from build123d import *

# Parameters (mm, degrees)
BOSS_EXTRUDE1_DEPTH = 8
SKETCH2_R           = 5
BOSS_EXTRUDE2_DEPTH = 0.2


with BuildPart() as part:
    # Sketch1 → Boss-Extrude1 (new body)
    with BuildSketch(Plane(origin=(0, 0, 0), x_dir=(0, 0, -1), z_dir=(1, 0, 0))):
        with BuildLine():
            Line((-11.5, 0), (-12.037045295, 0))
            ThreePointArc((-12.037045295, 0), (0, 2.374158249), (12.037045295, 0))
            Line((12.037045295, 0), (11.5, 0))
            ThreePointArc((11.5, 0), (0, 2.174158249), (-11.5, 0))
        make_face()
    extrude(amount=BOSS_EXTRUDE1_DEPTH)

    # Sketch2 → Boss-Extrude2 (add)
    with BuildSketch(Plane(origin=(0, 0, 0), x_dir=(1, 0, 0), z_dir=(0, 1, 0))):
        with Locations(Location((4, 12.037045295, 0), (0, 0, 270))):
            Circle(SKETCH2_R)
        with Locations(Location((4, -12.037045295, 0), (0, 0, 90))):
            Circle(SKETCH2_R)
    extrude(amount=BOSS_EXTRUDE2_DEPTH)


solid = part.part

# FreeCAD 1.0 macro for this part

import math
import FreeCAD as App
import Part
import Sketcher
from FreeCAD import Vector

doc = App.newDocument("Part")
body = doc.addObject("PartDesign::Body", "Body")

# Sketch on YZ plane
sketch1 = body.newObject("Sketcher::SketchObject", "Sketch")
sketch1.AttachmentSupport = (doc.getObject("YZ_Plane"), [""])
sketch1.MapMode = "FlatFace"
sketch1.addGeometry([
    Part.LineSegment(Vector(0, 12, 0), Vector(0, 11.5, 0)),
    Part.ArcOfCircle(Part.Circle(Vector(-29.3, 0, 0), Vector(0, 0, 1), 31.5), math.radians(-21), math.radians(21)),
    Part.LineSegment(Vector(0, -11.5, 0), Vector(0, -12, 0)),
    Part.ArcOfCircle(Part.Circle(Vector(-29.3, 0, 0), Vector(0, 0, 1), 31.7), math.radians(-22), math.radians(22)),
], False)
sketch1.addConstraint([
    Sketcher.Constraint("Coincident", 0, 2, 1, 2),
    Sketcher.Constraint("Coincident", 1, 1, 2, 1),
    Sketcher.Constraint("Coincident", 2, 2, 3, 1),
    Sketcher.Constraint("Coincident", 3, 2, 0, 1),
    Sketcher.Constraint("Vertical", 0),
    Sketcher.Constraint("Vertical", 2),
    Sketcher.Constraint("Coincident", 3, 3, 1, 3),
    Sketcher.Constraint("Symmetric", 0, 2, 1, 1, -1, 1),
    Sketcher.Constraint("PointOnObject", 1, 3, -1),
    Sketcher.Constraint("DistanceY", 1, 1, 0, 2, 23.0),
    Sketcher.Constraint("Radius", 1, 31.501149),
    Sketcher.Constraint("Radius", 3, 31.701149),
])
pad1 = body.newObject("PartDesign::Pad", "Pad")
pad1.Profile = sketch1
pad1.Length = 8

# Sketch on XZ plane
sketch2 = body.newObject("Sketcher::SketchObject", "Sketch001")
sketch2.AttachmentSupport = (doc.getObject("XZ_Plane"), [""])
sketch2.MapMode = "FlatFace"
sketch2.addGeometry([
    Part.Circle(Vector(4, -12, 0), Vector(0, 0, 1), 5),
    Part.Circle(Vector(4, 12, 0), Vector(0, 0, 1), 5),
], False)
sketch2.addConstraint([
    Sketcher.Constraint("Equal", 0, 1),
    Sketcher.Constraint("Symmetric", 0, 3, 1, 3, -1),
    Sketcher.Constraint("Diameter", 0, 10.0),
    Sketcher.Constraint("DistanceX", -1, 1, 0, 3, 4.0),
    Sketcher.Constraint("DistanceY", 0, 3, 1, 3, 24.074091),
])
pad2 = body.newObject("PartDesign::Pad", "Pad001")
pad2.Profile = sketch2
pad2.Length = 0.2
pad2.Reversed = True

doc.recompute()
